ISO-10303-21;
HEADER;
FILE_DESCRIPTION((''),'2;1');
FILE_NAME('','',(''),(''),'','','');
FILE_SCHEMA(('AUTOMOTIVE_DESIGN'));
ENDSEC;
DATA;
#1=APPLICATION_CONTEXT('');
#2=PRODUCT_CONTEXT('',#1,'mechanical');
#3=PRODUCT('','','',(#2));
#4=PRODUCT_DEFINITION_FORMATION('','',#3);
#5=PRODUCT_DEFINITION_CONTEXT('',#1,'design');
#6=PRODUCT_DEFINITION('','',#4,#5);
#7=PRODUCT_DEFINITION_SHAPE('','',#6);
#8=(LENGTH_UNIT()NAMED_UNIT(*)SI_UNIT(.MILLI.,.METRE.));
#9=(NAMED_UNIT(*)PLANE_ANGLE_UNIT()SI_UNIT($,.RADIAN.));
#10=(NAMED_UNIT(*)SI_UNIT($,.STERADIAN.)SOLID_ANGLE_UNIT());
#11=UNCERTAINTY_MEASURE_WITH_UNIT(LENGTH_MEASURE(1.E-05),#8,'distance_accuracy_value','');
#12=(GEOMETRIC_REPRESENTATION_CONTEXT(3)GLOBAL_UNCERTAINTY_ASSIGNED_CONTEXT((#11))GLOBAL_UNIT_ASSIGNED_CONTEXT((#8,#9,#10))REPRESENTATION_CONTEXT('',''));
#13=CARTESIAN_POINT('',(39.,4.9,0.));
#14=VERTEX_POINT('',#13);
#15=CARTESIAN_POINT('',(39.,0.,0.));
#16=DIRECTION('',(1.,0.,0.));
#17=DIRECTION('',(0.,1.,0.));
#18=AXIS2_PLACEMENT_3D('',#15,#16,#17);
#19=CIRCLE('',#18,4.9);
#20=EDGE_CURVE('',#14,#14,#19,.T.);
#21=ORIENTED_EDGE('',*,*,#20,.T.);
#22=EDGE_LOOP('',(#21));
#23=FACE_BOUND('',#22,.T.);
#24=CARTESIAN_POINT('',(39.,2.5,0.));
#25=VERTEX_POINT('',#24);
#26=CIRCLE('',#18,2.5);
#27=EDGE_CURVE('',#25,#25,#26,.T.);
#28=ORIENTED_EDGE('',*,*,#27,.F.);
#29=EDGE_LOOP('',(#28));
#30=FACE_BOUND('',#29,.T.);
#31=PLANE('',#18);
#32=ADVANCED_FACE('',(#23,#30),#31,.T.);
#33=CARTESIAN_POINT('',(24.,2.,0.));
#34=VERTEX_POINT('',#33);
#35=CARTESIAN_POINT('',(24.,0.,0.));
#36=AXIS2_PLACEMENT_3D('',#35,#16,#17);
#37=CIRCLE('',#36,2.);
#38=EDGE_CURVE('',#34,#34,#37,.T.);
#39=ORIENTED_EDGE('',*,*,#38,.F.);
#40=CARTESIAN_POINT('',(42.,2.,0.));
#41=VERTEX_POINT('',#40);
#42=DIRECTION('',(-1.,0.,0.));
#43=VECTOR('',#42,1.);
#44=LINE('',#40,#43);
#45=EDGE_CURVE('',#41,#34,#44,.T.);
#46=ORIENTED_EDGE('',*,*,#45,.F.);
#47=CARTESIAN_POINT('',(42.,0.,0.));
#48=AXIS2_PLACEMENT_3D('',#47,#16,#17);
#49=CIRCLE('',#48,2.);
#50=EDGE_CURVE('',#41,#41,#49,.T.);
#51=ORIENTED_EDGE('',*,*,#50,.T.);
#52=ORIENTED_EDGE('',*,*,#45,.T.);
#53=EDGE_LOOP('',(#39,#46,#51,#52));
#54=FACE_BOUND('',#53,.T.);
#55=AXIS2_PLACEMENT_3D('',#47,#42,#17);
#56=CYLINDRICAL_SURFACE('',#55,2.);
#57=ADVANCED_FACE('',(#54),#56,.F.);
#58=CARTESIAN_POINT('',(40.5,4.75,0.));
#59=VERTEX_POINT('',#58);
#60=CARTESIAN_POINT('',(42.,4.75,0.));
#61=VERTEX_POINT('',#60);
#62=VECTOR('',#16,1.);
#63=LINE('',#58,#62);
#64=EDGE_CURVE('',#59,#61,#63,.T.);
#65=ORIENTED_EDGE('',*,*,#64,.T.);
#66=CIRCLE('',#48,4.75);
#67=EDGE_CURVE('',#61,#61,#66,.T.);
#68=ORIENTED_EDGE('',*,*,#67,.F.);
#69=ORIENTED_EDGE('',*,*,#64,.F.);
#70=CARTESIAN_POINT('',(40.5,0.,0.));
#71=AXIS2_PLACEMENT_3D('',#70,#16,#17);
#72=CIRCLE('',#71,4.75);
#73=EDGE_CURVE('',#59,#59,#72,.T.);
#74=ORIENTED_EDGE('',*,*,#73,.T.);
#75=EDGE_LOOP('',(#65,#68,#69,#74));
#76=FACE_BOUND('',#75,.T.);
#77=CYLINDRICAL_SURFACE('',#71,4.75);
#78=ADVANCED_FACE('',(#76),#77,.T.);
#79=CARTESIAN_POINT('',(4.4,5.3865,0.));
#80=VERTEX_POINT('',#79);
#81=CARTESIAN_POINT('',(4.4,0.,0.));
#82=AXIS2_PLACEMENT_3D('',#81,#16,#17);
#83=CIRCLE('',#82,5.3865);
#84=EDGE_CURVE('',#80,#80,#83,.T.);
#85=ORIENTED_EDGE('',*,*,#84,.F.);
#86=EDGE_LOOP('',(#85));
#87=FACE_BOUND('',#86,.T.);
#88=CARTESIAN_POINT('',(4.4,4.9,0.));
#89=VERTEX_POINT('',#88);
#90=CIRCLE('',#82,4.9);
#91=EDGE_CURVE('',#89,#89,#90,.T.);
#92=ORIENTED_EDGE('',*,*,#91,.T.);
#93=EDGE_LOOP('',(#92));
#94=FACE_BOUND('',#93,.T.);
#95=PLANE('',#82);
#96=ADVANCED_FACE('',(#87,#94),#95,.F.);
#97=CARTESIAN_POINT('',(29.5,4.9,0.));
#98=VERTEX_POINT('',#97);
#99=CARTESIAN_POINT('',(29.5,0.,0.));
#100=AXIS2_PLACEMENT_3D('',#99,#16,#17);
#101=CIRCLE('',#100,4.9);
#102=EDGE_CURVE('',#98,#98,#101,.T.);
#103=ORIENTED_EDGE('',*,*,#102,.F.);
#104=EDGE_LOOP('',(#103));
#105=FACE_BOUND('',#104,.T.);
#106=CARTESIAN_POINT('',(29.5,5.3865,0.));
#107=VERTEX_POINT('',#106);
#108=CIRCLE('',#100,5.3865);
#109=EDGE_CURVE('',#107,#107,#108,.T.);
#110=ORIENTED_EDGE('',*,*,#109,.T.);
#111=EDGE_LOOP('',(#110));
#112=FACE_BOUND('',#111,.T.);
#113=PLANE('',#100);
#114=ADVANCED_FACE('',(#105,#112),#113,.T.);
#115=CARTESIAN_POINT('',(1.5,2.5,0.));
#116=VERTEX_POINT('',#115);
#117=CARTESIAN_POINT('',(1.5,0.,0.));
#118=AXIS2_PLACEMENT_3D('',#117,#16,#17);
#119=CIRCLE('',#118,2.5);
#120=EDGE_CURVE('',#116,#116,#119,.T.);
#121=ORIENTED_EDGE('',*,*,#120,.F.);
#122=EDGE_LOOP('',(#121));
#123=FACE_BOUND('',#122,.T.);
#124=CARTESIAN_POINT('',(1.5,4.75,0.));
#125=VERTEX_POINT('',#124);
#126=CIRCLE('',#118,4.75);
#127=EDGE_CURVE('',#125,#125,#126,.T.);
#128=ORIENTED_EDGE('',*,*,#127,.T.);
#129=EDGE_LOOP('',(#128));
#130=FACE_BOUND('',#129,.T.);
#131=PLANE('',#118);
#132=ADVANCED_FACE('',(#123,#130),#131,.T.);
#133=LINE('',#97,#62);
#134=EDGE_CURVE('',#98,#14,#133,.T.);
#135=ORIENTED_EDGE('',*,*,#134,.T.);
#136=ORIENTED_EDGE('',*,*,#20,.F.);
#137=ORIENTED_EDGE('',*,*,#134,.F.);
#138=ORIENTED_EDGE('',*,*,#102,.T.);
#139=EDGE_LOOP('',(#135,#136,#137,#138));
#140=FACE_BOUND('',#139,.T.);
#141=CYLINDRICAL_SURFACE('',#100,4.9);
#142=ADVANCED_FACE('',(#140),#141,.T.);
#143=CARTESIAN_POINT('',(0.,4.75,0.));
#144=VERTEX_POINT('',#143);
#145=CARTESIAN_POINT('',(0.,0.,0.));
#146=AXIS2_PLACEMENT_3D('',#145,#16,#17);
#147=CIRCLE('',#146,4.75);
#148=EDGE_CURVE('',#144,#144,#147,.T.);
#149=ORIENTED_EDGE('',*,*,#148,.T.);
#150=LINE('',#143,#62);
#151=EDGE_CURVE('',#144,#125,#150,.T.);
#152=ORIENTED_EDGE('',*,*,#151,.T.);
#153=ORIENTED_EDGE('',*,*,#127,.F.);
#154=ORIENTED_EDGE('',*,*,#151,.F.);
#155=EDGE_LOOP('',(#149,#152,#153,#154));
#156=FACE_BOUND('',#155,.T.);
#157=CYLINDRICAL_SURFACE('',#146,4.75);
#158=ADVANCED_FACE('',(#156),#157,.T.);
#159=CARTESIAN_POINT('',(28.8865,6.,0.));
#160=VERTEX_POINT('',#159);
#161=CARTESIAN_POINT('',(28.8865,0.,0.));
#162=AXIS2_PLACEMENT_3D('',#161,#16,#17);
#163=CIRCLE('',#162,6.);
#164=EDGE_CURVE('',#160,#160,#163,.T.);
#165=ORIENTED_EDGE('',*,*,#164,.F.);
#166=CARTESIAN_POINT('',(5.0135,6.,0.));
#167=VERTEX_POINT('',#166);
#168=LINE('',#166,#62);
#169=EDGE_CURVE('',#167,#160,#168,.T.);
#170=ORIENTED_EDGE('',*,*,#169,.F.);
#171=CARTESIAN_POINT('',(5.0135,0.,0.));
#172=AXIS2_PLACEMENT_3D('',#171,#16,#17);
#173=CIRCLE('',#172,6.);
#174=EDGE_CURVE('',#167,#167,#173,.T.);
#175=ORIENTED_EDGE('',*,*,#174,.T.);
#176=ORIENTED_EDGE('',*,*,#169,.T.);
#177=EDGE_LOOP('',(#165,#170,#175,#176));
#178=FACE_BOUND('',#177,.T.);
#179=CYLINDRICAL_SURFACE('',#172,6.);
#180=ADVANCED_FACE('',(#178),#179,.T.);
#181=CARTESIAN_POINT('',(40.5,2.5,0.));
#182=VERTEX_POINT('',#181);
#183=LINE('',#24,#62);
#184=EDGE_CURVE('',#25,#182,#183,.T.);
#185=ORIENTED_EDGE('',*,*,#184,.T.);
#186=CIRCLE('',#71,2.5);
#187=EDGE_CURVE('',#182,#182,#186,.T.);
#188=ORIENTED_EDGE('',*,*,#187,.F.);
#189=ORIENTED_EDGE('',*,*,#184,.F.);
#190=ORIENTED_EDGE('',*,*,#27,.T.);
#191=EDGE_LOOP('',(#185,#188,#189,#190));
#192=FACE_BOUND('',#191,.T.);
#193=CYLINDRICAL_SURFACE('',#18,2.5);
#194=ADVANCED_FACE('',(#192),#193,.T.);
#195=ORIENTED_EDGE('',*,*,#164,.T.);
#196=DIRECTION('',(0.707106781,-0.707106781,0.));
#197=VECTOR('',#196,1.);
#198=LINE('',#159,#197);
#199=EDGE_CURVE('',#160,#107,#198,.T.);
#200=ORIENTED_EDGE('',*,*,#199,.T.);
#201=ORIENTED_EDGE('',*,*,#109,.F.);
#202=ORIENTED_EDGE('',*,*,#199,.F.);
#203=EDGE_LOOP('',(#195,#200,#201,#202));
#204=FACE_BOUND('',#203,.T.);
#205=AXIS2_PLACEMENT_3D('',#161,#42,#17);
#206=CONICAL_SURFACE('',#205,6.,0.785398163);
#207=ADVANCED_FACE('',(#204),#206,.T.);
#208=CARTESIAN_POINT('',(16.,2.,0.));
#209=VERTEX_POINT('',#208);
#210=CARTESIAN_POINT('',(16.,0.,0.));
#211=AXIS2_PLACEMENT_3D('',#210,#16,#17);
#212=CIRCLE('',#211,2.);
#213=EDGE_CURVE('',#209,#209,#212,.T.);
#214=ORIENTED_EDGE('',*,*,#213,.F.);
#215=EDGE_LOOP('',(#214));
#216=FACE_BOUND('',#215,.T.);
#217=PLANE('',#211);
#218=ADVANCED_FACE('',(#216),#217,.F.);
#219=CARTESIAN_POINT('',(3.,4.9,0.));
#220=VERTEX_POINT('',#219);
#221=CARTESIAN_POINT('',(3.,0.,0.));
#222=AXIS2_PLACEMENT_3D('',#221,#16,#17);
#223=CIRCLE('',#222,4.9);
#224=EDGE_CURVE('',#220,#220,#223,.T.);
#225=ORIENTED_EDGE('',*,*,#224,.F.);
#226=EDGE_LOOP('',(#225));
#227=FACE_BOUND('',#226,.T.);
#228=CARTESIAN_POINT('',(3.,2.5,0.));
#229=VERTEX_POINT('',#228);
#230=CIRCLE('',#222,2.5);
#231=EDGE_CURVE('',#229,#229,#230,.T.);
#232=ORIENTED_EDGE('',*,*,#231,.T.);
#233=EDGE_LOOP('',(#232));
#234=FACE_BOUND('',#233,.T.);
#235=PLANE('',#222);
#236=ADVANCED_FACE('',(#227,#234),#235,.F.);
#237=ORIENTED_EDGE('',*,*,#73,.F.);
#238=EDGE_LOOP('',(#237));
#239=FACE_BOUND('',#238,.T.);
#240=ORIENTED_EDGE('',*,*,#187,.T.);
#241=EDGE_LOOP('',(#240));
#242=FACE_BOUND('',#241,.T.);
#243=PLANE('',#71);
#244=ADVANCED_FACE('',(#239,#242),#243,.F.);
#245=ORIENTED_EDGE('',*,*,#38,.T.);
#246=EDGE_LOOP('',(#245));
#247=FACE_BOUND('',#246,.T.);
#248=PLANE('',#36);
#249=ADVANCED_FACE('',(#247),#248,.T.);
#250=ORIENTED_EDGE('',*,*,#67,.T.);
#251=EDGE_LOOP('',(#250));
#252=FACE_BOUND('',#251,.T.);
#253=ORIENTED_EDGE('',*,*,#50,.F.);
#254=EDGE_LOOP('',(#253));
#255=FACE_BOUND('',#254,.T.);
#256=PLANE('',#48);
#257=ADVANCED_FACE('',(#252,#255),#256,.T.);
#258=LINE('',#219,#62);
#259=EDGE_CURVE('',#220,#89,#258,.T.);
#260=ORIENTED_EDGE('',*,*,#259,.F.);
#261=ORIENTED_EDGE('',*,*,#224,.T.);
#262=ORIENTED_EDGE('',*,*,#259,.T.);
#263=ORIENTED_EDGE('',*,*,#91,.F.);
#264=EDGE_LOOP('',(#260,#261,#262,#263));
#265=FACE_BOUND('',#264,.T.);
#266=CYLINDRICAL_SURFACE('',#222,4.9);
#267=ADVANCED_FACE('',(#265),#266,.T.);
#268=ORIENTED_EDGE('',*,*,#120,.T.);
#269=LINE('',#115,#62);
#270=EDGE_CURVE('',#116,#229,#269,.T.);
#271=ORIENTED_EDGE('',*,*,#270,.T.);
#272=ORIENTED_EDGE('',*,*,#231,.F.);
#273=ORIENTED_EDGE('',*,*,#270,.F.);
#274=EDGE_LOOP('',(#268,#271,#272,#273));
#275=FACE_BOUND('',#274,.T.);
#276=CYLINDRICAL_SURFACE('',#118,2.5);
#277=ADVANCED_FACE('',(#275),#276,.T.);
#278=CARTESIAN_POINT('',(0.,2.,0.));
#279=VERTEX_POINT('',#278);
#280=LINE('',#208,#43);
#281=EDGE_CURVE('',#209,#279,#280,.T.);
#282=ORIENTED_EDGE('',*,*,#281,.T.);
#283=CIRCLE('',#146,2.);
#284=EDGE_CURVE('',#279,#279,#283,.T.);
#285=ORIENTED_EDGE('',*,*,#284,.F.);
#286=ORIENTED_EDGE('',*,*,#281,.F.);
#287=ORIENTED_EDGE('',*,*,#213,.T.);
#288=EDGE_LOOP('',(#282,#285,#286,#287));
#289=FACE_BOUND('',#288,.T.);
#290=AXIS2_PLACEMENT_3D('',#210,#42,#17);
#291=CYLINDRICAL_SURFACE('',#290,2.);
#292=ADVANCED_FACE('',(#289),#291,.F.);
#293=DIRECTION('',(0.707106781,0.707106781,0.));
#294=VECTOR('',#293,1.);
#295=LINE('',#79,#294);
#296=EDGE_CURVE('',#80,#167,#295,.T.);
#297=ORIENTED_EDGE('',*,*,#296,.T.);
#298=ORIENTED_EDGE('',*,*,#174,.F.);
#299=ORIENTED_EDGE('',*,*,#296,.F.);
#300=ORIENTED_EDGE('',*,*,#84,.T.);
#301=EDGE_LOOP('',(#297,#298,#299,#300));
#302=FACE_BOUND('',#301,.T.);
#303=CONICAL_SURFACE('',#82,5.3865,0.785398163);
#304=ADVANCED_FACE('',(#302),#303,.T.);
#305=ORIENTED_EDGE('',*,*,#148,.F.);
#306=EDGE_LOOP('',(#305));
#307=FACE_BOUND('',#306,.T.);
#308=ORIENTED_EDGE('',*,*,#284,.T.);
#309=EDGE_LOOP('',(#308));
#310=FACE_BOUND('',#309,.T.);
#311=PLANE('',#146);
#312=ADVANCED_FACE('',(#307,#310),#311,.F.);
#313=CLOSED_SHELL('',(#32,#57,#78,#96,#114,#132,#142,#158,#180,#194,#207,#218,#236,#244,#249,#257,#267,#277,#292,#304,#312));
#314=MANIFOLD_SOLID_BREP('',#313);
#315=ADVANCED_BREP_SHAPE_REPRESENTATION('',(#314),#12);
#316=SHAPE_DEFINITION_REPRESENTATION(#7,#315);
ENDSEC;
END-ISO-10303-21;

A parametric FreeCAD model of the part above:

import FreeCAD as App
import Part
import Sketcher
from FreeCAD import Vector


def add_polygon(sketch, points):
    """Adds a closed chain of lines whose ends are joined by coincident constraints."""
    first, n = sketch.GeometryCount, len(points)
    for a, b in zip(points, points[1:] + points[:1]):
        sketch.addGeometry(Part.LineSegment(App.Vector(*a, 0), App.Vector(*b, 0)), False)
    for i in range(n):
        sketch.addConstraint(Sketcher.Constraint("Coincident", first + i, 2, first + (i + 1) % n, 1))

doc = App.newDocument("Part")
body = doc.addObject("PartDesign::Body", "Body")

# Sketch on XY plane
sketch1 = body.newObject("Sketcher::SketchObject", "Sketch")
sketch1.AttachmentSupport = (doc.getObject("XY_Plane"), [""])
sketch1.MapMode = "FlatFace"
add_polygon(sketch1, [(16, 0), (24, 0), (24, 2), (42, 2), (42, 4.75), (40.5, 4.75), (40.5, 2.5), (39, 2.5), (39, 4.9), (29.5, 4.9), (29.5, 5.3865), (28.8865, 6), (5.0135, 6), (4.4, 5.3865), (4.4, 4.9), (3, 4.9), (3, 2.5), (1.5, 2.5), (1.5, 4.75), (0, 4.75), (0, 2), (16, 2)])  # lines 0-21
sketch1.addConstraint(Sketcher.Constraint("Horizontal", 0))
sketch1.addConstraint(Sketcher.Constraint("Vertical", 1))
sketch1.addConstraint(Sketcher.Constraint("Horizontal", 2))
sketch1.addConstraint(Sketcher.Constraint("Vertical", 3))
sketch1.addConstraint(Sketcher.Constraint("Horizontal", 4))
sketch1.addConstraint(Sketcher.Constraint("Vertical", 5))
sketch1.addConstraint(Sketcher.Constraint("Horizontal", 6))
sketch1.addConstraint(Sketcher.Constraint("Vertical", 7))
sketch1.addConstraint(Sketcher.Constraint("Horizontal", 8))
sketch1.addConstraint(Sketcher.Constraint("Vertical", 9))
sketch1.addConstraint(Sketcher.Constraint("Horizontal", 11))
sketch1.addConstraint(Sketcher.Constraint("Vertical", 13))
sketch1.addConstraint(Sketcher.Constraint("Horizontal", 14))
sketch1.addConstraint(Sketcher.Constraint("Vertical", 15))
sketch1.addConstraint(Sketcher.Constraint("Horizontal", 16))
sketch1.addConstraint(Sketcher.Constraint("Vertical", 17))
sketch1.addConstraint(Sketcher.Constraint("Horizontal", 18))
sketch1.addConstraint(Sketcher.Constraint("Vertical", 19))
sketch1.addConstraint(Sketcher.Constraint("Horizontal", 20))
sketch1.addConstraint(Sketcher.Constraint("Vertical", 21))
sketch1.addConstraint(Sketcher.Constraint("PointOnObject", 0, 2, -1))
sketch1.addConstraint(Sketcher.Constraint("PointOnObject", 18, 2, -2))
sketch1.addConstraint(Sketcher.Constraint("Perpendicular", 10, 12))
sketch1.addConstraint(Sketcher.Constraint("Horizontal", 9, 2, 12, 2))
sketch1.addConstraint(Sketcher.Constraint("Horizontal", 8, 2, 13, 2))
sketch1.addConstraint(Sketcher.Constraint("Horizontal", 6, 2, 15, 2))
sketch1.addConstraint(Sketcher.Constraint("Horizontal", 4, 2, 17, 2))
sketch1.addConstraint(Sketcher.Constraint("Horizontal", 2, 2, 19, 2))
sketch1.addConstraint(Sketcher.Constraint("Equal", 4, 6))
sketch1.addConstraint(Sketcher.Constraint("Equal", 6, 16))
sketch1.addConstraint(Sketcher.Constraint("Equal", 16, 18))
sketch1.addConstraint(Sketcher.Constraint("Equal", 10, 12))
sketch1.addConstraint(Sketcher.Constraint("DistanceX", 0, 1, 0, 2, 8.0))
sketch1.addConstraint(Sketcher.Constraint("DistanceX", 2, 1, 2, 2, 18.0))
sketch1.addConstraint(Sketcher.Constraint("DistanceX", 20, 1, 20, 2, 16.0))
sketch1.addConstraint(Sketcher.Constraint("DistanceY", 1, 1, 1, 2, 2.0))
sketch1.addConstraint(Sketcher.Constraint("DistanceX", 4, 2, 4, 1, 1.5))
sketch1.addConstraint(Sketcher.Constraint("DistanceX", 8, 2, 8, 1, 9.5))
sketch1.addConstraint(Sketcher.Constraint("DistanceX", 14, 2, 14, 1, 1.4))
sketch1.addConstraint(Sketcher.Constraint("DistanceY", 7, 1, 7, 2, 2.4))
sketch1.addConstraint(Sketcher.Constraint("DistanceY", -1, 1, 10, 2, 6.0))
sketch1.addConstraint(Sketcher.Constraint("DistanceY", 3, 1, 3, 2, 2.75))
sketch1.addConstraint(Sketcher.Constraint("DistanceY", 5, 2, 5, 1, 2.25))
sketch1.addConstraint(Sketcher.Constraint("DistanceX", 11, 2, 11, 1, 23.873))
revolution = body.newObject("PartDesign::Revolution", "Revolution")
revolution.Profile = sketch1
revolution.ReferenceAxis = (sketch1, ["H_Axis"])
revolution.Angle = 360

doc.recompute()
